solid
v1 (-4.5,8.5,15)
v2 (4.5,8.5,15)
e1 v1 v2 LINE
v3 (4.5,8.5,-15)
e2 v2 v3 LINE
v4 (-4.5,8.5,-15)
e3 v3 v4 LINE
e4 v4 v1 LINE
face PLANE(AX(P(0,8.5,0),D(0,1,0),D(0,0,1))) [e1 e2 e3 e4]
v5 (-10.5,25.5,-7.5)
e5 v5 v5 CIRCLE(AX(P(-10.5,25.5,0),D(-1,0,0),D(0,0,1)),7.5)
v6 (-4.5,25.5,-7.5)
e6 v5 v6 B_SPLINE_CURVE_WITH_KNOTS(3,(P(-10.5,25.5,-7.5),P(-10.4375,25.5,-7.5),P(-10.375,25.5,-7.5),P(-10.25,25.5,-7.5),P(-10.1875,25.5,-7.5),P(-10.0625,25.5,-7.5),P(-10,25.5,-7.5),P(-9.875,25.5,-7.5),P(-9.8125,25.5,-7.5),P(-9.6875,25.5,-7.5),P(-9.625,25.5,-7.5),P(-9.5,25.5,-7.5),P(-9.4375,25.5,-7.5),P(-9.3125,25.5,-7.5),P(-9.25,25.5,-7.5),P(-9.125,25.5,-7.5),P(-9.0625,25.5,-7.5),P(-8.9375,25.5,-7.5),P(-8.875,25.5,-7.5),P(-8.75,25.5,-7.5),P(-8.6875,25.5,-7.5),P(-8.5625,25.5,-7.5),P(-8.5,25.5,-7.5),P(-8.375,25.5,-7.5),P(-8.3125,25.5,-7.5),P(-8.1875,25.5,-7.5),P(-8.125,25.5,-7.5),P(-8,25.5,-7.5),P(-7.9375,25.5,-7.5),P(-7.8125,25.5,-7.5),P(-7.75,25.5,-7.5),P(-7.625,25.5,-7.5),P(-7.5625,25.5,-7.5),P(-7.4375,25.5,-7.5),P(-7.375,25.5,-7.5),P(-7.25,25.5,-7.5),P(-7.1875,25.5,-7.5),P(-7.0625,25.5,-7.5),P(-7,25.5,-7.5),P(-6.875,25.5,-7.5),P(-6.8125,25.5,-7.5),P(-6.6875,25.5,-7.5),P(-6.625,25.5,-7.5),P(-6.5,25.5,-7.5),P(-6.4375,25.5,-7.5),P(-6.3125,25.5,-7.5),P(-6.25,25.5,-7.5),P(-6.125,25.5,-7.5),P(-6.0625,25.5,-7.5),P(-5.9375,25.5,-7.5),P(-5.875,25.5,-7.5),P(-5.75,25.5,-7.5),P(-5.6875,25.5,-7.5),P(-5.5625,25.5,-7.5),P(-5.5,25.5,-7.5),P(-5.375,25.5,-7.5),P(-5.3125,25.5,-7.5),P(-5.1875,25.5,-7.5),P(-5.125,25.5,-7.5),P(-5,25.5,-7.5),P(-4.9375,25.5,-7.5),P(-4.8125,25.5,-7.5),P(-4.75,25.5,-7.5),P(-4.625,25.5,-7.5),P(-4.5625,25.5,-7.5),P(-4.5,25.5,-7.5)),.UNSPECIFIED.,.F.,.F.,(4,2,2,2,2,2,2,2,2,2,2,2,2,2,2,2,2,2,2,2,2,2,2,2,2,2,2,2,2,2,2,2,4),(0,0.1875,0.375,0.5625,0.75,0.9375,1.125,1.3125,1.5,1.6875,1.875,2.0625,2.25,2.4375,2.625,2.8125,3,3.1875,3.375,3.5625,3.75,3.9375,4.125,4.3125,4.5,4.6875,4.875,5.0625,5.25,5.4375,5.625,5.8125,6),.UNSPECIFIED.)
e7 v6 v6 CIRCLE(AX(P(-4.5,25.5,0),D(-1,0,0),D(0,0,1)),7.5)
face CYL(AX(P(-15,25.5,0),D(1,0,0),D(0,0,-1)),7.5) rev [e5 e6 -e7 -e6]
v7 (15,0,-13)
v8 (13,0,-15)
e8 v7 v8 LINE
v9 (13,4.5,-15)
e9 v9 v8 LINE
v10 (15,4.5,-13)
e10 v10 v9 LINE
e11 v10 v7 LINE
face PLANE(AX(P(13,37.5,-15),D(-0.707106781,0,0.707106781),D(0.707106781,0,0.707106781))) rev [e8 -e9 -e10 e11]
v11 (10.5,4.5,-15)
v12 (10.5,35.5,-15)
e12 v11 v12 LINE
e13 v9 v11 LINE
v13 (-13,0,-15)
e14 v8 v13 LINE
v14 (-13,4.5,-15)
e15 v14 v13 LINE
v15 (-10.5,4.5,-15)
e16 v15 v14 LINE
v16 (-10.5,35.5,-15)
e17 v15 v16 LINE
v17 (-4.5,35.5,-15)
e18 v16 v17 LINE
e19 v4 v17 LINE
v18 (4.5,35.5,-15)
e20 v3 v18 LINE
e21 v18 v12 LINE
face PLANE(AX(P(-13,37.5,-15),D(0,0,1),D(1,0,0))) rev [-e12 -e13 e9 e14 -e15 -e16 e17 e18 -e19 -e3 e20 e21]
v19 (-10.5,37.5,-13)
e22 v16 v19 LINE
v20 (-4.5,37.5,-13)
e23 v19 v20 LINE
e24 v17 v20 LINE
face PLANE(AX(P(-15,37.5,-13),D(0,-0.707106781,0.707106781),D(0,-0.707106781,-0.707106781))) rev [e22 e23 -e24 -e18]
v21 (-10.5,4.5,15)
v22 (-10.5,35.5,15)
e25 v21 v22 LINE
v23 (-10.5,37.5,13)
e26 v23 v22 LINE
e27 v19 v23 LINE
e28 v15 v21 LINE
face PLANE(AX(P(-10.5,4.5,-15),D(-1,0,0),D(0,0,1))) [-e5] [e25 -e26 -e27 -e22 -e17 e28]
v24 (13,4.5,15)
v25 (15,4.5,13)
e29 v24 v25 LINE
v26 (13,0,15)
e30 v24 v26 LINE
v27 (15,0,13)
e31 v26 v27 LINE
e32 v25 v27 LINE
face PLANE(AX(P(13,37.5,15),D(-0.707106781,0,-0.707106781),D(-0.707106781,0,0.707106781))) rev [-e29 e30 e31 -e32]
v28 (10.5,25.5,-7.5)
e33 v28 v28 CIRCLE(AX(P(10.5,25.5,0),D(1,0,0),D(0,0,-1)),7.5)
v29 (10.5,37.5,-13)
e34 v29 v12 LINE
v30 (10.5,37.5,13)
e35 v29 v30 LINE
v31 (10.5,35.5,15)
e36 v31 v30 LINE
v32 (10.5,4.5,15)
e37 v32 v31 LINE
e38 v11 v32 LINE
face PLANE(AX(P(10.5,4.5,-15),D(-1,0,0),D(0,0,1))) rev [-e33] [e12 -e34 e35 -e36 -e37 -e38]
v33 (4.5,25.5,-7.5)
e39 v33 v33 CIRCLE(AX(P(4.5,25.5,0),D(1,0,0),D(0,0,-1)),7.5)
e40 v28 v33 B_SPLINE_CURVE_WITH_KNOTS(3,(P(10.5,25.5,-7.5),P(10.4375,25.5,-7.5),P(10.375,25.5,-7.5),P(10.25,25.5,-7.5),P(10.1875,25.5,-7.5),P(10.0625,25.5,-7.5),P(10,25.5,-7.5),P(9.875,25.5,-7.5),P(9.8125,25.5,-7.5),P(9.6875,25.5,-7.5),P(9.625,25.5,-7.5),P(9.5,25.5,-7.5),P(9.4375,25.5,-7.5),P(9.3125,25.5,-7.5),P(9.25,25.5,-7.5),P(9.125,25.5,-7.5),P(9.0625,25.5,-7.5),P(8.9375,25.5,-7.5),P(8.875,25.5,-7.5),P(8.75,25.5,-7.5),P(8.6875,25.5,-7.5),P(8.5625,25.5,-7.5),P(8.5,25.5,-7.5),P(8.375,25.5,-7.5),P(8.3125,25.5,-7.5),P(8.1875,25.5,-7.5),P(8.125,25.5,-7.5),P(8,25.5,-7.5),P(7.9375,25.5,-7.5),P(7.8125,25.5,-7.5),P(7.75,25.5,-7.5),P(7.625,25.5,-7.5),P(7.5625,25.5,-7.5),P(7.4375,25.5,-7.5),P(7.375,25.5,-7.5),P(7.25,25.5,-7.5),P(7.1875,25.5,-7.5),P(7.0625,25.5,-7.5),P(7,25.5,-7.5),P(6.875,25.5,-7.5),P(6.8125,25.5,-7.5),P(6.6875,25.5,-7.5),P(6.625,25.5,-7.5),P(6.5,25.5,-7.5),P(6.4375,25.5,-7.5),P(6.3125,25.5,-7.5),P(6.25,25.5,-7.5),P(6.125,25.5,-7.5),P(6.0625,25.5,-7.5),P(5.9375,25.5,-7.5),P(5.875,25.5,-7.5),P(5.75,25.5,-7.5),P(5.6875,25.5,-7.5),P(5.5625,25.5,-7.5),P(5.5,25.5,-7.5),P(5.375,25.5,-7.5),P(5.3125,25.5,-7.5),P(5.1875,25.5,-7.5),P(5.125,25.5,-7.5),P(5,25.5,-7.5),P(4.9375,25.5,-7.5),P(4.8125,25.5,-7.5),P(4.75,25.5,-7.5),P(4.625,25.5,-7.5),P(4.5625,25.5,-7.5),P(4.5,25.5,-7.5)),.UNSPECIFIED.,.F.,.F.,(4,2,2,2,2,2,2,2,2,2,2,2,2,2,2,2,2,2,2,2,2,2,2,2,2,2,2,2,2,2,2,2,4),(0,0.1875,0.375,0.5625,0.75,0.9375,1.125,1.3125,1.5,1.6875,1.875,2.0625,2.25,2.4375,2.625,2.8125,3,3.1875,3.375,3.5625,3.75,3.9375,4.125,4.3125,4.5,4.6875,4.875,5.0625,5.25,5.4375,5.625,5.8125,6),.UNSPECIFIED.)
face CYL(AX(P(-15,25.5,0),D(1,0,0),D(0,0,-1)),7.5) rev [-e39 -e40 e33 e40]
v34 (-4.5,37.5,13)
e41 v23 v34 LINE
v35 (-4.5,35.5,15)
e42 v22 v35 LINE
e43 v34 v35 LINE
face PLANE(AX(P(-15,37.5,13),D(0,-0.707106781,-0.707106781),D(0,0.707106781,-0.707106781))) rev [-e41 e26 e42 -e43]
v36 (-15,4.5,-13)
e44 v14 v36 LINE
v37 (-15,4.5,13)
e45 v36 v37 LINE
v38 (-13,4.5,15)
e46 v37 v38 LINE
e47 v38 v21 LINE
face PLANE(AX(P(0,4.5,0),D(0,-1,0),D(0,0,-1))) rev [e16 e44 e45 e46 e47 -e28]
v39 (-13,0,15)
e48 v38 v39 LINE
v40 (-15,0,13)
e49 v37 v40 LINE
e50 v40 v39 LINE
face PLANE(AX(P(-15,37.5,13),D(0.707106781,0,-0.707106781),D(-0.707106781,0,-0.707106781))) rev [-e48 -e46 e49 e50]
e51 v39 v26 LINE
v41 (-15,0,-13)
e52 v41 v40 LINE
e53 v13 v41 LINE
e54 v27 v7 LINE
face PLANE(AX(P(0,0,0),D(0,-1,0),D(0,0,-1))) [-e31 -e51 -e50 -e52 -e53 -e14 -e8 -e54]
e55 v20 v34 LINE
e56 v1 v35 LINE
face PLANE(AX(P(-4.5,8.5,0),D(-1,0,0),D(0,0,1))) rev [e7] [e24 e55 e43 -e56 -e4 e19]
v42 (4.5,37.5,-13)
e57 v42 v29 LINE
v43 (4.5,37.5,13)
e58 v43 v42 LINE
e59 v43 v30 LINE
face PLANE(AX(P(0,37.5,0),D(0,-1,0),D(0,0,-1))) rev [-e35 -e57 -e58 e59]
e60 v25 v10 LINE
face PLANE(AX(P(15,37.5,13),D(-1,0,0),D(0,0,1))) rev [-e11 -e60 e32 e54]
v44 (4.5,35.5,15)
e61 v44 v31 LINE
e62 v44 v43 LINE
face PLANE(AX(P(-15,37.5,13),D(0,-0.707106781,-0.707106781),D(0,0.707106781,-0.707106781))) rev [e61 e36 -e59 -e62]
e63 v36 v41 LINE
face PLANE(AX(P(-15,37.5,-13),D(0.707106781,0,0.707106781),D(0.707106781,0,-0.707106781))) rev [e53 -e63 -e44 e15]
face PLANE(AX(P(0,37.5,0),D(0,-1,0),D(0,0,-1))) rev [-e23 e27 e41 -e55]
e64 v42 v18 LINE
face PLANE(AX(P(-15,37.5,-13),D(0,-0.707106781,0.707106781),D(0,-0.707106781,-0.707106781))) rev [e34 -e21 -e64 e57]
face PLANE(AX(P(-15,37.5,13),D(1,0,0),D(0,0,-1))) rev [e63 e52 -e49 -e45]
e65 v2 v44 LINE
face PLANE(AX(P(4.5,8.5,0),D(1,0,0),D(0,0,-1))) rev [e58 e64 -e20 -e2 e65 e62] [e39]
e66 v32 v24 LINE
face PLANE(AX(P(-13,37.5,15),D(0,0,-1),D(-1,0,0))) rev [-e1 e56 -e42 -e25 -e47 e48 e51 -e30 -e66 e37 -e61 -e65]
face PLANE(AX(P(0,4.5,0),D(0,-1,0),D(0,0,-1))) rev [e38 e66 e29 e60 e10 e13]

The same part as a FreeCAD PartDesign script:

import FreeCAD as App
import Part
import Sketcher

doc = App.newDocument("Part")
body = doc.addObject("PartDesign::Body", "Body")

sketch1 = body.newObject("Sketcher::SketchObject", "Sketch")
sketch1.AttachmentSupport = (doc.getObject("XZ_Plane"), [""])
sketch1.MapMode = "FlatFace"
sketch1.addGeometry([
    Part.LineSegment(App.Vector(-13, -15, 0), App.Vector(-15, -13, 0)),
    Part.LineSegment(App.Vector(-15, -13, 0), App.Vector(-15, 13, 0)),
    Part.LineSegment(App.Vector(-15, 13, 0), App.Vector(-13, 15, 0)),
    Part.LineSegment(App.Vector(-13, 15, 0), App.Vector(13, 15, 0)),
    Part.LineSegment(App.Vector(13, 15, 0), App.Vector(15, 13, 0)),
    Part.LineSegment(App.Vector(15, 13, 0), App.Vector(15, -13, 0)),
    Part.LineSegment(App.Vector(15, -13, 0), App.Vector(13, -15, 0)),
    Part.LineSegment(App.Vector(13, -15, 0), App.Vector(-13, -15, 0)),
], False)
sketch1.addConstraint([
    Sketcher.Constraint("Coincident", 0, 2, 1, 1),
    Sketcher.Constraint("Coincident", 1, 2, 2, 1),
    Sketcher.Constraint("Coincident", 2, 2, 3, 1),
    Sketcher.Constraint("Coincident", 3, 2, 4, 1),
    Sketcher.Constraint("Coincident", 4, 2, 5, 1),
    Sketcher.Constraint("Coincident", 5, 2, 6, 1),
    Sketcher.Constraint("Coincident", 6, 2, 7, 1),
    Sketcher.Constraint("Coincident", 7, 2, 0, 1),
    Sketcher.Constraint("Vertical", 1),
    Sketcher.Constraint("Horizontal", 3),
    Sketcher.Constraint("Vertical", 5),
    Sketcher.Constraint("Horizontal", 7),
    Sketcher.Constraint("Symmetric", 0, 2, 4, 2, -1, 1),
    Sketcher.Constraint("Symmetric", 2, 2, 6, 2, -1, 1),
    Sketcher.Constraint("Perpendicular", 0, 2),
    Sketcher.Constraint("Perpendicular", 2, 4),
    Sketcher.Constraint("Perpendicular", 4, 6),
    Sketcher.Constraint("Horizontal", 1, 2, 4, 2),
    Sketcher.Constraint("Vertical", 3, 2, 6, 2),
    Sketcher.Constraint("Equal", 7, 1),
    Sketcher.Constraint("DistanceX", 3, 1, 3, 2, 26.0),
    Sketcher.Constraint("DistanceX", 0, 2, -1, 1, 15.0),
])
pad1 = body.newObject("PartDesign::Pad", "Pad")
pad1.Profile = sketch1
pad1.Length = 37.5
pad1.Reversed = True

sketch2 = body.newObject("Sketcher::SketchObject", "Sketch001")
sketch2.AttachmentSupport = (doc.getObject("XZ_Plane"), [""])
sketch2.MapMode = "FlatFace"
sketch2.AttachmentOffset = App.Placement(App.Vector(0, 0, -37.5), App.Rotation())
sketch2.addGeometry([
    Part.LineSegment(App.Vector(-10.5, 15, 0), App.Vector(-10.5, -15, 0)),
    Part.LineSegment(App.Vector(-10.5, -15, 0), App.Vector(-13, -15, 0)),
    Part.LineSegment(App.Vector(-13, -15, 0), App.Vector(-15, -13, 0)),
    Part.LineSegment(App.Vector(-15, -13, 0), App.Vector(-15, 13, 0)),
    Part.LineSegment(App.Vector(-15, 13, 0), App.Vector(-13, 15, 0)),
    Part.LineSegment(App.Vector(-13, 15, 0), App.Vector(-10.5, 15, 0)),
], False)
sketch2.addConstraint([
    Sketcher.Constraint("Coincident", 0, 2, 1, 1),
    Sketcher.Constraint("Coincident", 1, 2, 2, 1),
    Sketcher.Constraint("Coincident", 2, 2, 3, 1),
    Sketcher.Constraint("Coincident", 3, 2, 4, 1),
    Sketcher.Constraint("Coincident", 4, 2, 5, 1),
    Sketcher.Constraint("Coincident", 5, 2, 0, 1),
    Sketcher.Constraint("Vertical", 0),
    Sketcher.Constraint("Horizontal", 1),
    Sketcher.Constraint("Vertical", 3),
    Sketcher.Constraint("Horizontal", 5),
    Sketcher.Constraint("Symmetric", 1, 2, 4, 2, -1),
    Sketcher.Constraint("Perpendicular", 2, 4),
    Sketcher.Constraint("Equal", 2, 4),
    Sketcher.Constraint("DistanceY", 0, 2, 0, 1, 30.0),
    Sketcher.Constraint("DistanceY", 3, 1, 3, 2, 26.0),
    Sketcher.Constraint("DistanceX", 1, 2, 1, 1, 2.5),
    Sketcher.Constraint("DistanceX", 1, 2, -1, 1, 13.0),
])
pocket1 = body.newObject("PartDesign::Pocket", "Pocket")
pocket1.Profile = sketch2
pocket1.Length = 33
pocket1.Reversed = True

sketch3 = body.newObject("Sketcher::SketchObject", "Sketch002")
sketch3.AttachmentSupport = (doc.getObject("XZ_Plane"), [""])
sketch3.MapMode = "FlatFace"
sketch3.AttachmentOffset = App.Placement(App.Vector(0, 0, -37.5), App.Rotation())
sketch3.addGeometry([
    Part.LineSegment(App.Vector(10.5, -15, 0), App.Vector(10.5, 15, 0)),
    Part.LineSegment(App.Vector(10.5, 15, 0), App.Vector(13, 15, 0)),
    Part.LineSegment(App.Vector(13, 15, 0), App.Vector(15, 13, 0)),
    Part.LineSegment(App.Vector(15, 13, 0), App.Vector(15, -13, 0)),
    Part.LineSegment(App.Vector(15, -13, 0), App.Vector(13, -15, 0)),
    Part.LineSegment(App.Vector(13, -15, 0), App.Vector(10.5, -15, 0)),
], False)
sketch3.addConstraint([
    Sketcher.Constraint("Coincident", 0, 2, 1, 1),
    Sketcher.Constraint("Coincident", 1, 2, 2, 1),
    Sketcher.Constraint("Coincident", 2, 2, 3, 1),
    Sketcher.Constraint("Coincident", 3, 2, 4, 1),
    Sketcher.Constraint("Coincident", 4, 2, 5, 1),
    Sketcher.Constraint("Coincident", 5, 2, 0, 1),
    Sketcher.Constraint("Vertical", 0),
    Sketcher.Constraint("Horizontal", 1),
    Sketcher.Constraint("Vertical", 3),
    Sketcher.Constraint("Horizontal", 5),
    Sketcher.Constraint("Symmetric", 1, 2, 4, 2, -1),
    Sketcher.Constraint("Perpendicular", 2, 4),
    Sketcher.Constraint("Equal", 2, 4),
    Sketcher.Constraint("DistanceY", 0, 1, 0, 2, 30.0),
    Sketcher.Constraint("DistanceY", 3, 2, 3, 1, 26.0),
    Sketcher.Constraint("DistanceX", 1, 1, 1, 2, 2.5),
    Sketcher.Constraint("DistanceX", -1, 1, 1, 2, 13.0),
])
pocket2 = body.newObject("PartDesign::Pocket", "Pocket001")
pocket2.Profile = sketch3
pocket2.Length = 33
pocket2.Reversed = True

sketch4 = body.newObject("Sketcher::SketchObject", "Sketch003")
sketch4.AttachmentSupport = (doc.getObject("XZ_Plane"), [""])
sketch4.MapMode = "FlatFace"
sketch4.AttachmentOffset = App.Placement(App.Vector(0, 0, -37.5), App.Rotation())
sketch4.addGeometry([
    Part.LineSegment(App.Vector(4.5, -15, 0), App.Vector(-4.5, -15, 0)),
    Part.LineSegment(App.Vector(-4.5, -15, 0), App.Vector(-4.5, 15, 0)),
    Part.LineSegment(App.Vector(-4.5, 15, 0), App.Vector(4.5, 15, 0)),
    Part.LineSegment(App.Vector(4.5, 15, 0), App.Vector(4.5, -15, 0)),
], False)
sketch4.addConstraint([
    Sketcher.Constraint("Coincident", 0, 2, 1, 1),
    Sketcher.Constraint("Coincident", 1, 2, 2, 1),
    Sketcher.Constraint("Coincident", 2, 2, 3, 1),
    Sketcher.Constraint("Coincident", 3, 2, 0, 1),
    Sketcher.Constraint("Horizontal", 0),
    Sketcher.Constraint("Vertical", 1),
    Sketcher.Constraint("Horizontal", 2),
    Sketcher.Constraint("Vertical", 3),
    Sketcher.Constraint("Symmetric", 0, 2, 2, 2, -1, 1),
    Sketcher.Constraint("DistanceX", 0, 2, 0, 1, 9.0),
    Sketcher.Constraint("DistanceY", 1, 1, 1, 2, 30.0),
])
pocket3 = body.newObject("PartDesign::Pocket", "Pocket002")
pocket3.Profile = sketch4
pocket3.Length = 29
pocket3.Reversed = True

sketch5 = body.newObject("Sketcher::SketchObject", "Sketch004")
sketch5.AttachmentSupport = (doc.getObject("YZ_Plane"), [""])
sketch5.MapMode = "FlatFace"
sketch5.AttachmentOffset = App.Placement(App.Vector(0, 0, 10.5), App.Rotation())
sketch5.addGeometry(Part.Circle(App.Vector(25.5, 0, 0), App.Vector(0, 0, 1), 7.5), False)
sketch5.addConstraint([
    Sketcher.Constraint("PointOnObject", 0, 3, -1),
    Sketcher.Constraint("Diameter", 0, 15.0),
    Sketcher.Constraint("DistanceX", -1, 1, 0, 3, 25.5),
])
pocket4 = body.newObject("PartDesign::Pocket", "Pocket003")
pocket4.Profile = sketch5
pocket4.Type = "ThroughAll"

sketch6 = body.newObject("Sketcher::SketchObject", "Sketch005")
sketch6.AttachmentSupport = (doc.getObject("YZ_Plane"), [""])
sketch6.MapMode = "FlatFace"
sketch6.AttachmentOffset = App.Placement(App.Vector(0, 0, 10.5), App.Rotation())
sketch6.addGeometry([
    Part.LineSegment(App.Vector(37.5, 13, 0), App.Vector(37.5, 15, 0)),
    Part.LineSegment(App.Vector(37.5, 15, 0), App.Vector(35.5, 15, 0)),
    Part.LineSegment(App.Vector(35.5, 15, 0), App.Vector(37.5, 13, 0)),
], False)
sketch6.addConstraint([
    Sketcher.Constraint("Coincident", 0, 2, 1, 1),
    Sketcher.Constraint("Coincident", 1, 2, 2, 1),
    Sketcher.Constraint("Coincident", 2, 2, 0, 1),
    Sketcher.Constraint("Vertical", 0),
    Sketcher.Constraint("Horizontal", 1),
    Sketcher.Constraint("Equal", 1, 0),
    Sketcher.Constraint("DistanceX", 1, 2, 1, 1, 2.0),
    Sketcher.Constraint("DistanceY", -1, 1, 0, 2, 15.0),
    Sketcher.Constraint("DistanceX", -1, 1, 0, 2, 37.5),
])
pocket5 = body.newObject("PartDesign::Pocket", "Pocket004")
pocket5.Profile = sketch6
pocket5.Type = "ThroughAll"

sketch7 = body.newObject("Sketcher::SketchObject", "Sketch006")
sketch7.AttachmentSupport = (doc.getObject("YZ_Plane"), [""])
sketch7.MapMode = "FlatFace"
sketch7.AttachmentOffset = App.Placement(App.Vector(0, 0, 10.5), App.Rotation())
sketch7.addGeometry([
    Part.LineSegment(App.Vector(37.5, -15, 0), App.Vector(37.5, -13, 0)),
    Part.LineSegment(App.Vector(37.5, -13, 0), App.Vector(35.5, -15, 0)),
    Part.LineSegment(App.Vector(35.5, -15, 0), App.Vector(37.5, -15, 0)),
], False)
sketch7.addConstraint([
    Sketcher.Constraint("Coincident", 0, 2, 1, 1),
    Sketcher.Constraint("Coincident", 1, 2, 2, 1),
    Sketcher.Constraint("Coincident", 2, 2, 0, 1),
    Sketcher.Constraint("Vertical", 0),
    Sketcher.Constraint("Horizontal", 2),
    Sketcher.Constraint("Equal", 2, 0),
    Sketcher.Constraint("DistanceX", 2, 1, 2, 2, 2.0),
    Sketcher.Constraint("DistanceY", 0, 2, -1, 1, 13.0),
    Sketcher.Constraint("DistanceX", -1, 1, 0, 2, 37.5),
])
pocket6 = body.newObject("PartDesign::Pocket", "Pocket005")
pocket6.Profile = sketch7
pocket6.Type = "ThroughAll"

doc.recompute()
